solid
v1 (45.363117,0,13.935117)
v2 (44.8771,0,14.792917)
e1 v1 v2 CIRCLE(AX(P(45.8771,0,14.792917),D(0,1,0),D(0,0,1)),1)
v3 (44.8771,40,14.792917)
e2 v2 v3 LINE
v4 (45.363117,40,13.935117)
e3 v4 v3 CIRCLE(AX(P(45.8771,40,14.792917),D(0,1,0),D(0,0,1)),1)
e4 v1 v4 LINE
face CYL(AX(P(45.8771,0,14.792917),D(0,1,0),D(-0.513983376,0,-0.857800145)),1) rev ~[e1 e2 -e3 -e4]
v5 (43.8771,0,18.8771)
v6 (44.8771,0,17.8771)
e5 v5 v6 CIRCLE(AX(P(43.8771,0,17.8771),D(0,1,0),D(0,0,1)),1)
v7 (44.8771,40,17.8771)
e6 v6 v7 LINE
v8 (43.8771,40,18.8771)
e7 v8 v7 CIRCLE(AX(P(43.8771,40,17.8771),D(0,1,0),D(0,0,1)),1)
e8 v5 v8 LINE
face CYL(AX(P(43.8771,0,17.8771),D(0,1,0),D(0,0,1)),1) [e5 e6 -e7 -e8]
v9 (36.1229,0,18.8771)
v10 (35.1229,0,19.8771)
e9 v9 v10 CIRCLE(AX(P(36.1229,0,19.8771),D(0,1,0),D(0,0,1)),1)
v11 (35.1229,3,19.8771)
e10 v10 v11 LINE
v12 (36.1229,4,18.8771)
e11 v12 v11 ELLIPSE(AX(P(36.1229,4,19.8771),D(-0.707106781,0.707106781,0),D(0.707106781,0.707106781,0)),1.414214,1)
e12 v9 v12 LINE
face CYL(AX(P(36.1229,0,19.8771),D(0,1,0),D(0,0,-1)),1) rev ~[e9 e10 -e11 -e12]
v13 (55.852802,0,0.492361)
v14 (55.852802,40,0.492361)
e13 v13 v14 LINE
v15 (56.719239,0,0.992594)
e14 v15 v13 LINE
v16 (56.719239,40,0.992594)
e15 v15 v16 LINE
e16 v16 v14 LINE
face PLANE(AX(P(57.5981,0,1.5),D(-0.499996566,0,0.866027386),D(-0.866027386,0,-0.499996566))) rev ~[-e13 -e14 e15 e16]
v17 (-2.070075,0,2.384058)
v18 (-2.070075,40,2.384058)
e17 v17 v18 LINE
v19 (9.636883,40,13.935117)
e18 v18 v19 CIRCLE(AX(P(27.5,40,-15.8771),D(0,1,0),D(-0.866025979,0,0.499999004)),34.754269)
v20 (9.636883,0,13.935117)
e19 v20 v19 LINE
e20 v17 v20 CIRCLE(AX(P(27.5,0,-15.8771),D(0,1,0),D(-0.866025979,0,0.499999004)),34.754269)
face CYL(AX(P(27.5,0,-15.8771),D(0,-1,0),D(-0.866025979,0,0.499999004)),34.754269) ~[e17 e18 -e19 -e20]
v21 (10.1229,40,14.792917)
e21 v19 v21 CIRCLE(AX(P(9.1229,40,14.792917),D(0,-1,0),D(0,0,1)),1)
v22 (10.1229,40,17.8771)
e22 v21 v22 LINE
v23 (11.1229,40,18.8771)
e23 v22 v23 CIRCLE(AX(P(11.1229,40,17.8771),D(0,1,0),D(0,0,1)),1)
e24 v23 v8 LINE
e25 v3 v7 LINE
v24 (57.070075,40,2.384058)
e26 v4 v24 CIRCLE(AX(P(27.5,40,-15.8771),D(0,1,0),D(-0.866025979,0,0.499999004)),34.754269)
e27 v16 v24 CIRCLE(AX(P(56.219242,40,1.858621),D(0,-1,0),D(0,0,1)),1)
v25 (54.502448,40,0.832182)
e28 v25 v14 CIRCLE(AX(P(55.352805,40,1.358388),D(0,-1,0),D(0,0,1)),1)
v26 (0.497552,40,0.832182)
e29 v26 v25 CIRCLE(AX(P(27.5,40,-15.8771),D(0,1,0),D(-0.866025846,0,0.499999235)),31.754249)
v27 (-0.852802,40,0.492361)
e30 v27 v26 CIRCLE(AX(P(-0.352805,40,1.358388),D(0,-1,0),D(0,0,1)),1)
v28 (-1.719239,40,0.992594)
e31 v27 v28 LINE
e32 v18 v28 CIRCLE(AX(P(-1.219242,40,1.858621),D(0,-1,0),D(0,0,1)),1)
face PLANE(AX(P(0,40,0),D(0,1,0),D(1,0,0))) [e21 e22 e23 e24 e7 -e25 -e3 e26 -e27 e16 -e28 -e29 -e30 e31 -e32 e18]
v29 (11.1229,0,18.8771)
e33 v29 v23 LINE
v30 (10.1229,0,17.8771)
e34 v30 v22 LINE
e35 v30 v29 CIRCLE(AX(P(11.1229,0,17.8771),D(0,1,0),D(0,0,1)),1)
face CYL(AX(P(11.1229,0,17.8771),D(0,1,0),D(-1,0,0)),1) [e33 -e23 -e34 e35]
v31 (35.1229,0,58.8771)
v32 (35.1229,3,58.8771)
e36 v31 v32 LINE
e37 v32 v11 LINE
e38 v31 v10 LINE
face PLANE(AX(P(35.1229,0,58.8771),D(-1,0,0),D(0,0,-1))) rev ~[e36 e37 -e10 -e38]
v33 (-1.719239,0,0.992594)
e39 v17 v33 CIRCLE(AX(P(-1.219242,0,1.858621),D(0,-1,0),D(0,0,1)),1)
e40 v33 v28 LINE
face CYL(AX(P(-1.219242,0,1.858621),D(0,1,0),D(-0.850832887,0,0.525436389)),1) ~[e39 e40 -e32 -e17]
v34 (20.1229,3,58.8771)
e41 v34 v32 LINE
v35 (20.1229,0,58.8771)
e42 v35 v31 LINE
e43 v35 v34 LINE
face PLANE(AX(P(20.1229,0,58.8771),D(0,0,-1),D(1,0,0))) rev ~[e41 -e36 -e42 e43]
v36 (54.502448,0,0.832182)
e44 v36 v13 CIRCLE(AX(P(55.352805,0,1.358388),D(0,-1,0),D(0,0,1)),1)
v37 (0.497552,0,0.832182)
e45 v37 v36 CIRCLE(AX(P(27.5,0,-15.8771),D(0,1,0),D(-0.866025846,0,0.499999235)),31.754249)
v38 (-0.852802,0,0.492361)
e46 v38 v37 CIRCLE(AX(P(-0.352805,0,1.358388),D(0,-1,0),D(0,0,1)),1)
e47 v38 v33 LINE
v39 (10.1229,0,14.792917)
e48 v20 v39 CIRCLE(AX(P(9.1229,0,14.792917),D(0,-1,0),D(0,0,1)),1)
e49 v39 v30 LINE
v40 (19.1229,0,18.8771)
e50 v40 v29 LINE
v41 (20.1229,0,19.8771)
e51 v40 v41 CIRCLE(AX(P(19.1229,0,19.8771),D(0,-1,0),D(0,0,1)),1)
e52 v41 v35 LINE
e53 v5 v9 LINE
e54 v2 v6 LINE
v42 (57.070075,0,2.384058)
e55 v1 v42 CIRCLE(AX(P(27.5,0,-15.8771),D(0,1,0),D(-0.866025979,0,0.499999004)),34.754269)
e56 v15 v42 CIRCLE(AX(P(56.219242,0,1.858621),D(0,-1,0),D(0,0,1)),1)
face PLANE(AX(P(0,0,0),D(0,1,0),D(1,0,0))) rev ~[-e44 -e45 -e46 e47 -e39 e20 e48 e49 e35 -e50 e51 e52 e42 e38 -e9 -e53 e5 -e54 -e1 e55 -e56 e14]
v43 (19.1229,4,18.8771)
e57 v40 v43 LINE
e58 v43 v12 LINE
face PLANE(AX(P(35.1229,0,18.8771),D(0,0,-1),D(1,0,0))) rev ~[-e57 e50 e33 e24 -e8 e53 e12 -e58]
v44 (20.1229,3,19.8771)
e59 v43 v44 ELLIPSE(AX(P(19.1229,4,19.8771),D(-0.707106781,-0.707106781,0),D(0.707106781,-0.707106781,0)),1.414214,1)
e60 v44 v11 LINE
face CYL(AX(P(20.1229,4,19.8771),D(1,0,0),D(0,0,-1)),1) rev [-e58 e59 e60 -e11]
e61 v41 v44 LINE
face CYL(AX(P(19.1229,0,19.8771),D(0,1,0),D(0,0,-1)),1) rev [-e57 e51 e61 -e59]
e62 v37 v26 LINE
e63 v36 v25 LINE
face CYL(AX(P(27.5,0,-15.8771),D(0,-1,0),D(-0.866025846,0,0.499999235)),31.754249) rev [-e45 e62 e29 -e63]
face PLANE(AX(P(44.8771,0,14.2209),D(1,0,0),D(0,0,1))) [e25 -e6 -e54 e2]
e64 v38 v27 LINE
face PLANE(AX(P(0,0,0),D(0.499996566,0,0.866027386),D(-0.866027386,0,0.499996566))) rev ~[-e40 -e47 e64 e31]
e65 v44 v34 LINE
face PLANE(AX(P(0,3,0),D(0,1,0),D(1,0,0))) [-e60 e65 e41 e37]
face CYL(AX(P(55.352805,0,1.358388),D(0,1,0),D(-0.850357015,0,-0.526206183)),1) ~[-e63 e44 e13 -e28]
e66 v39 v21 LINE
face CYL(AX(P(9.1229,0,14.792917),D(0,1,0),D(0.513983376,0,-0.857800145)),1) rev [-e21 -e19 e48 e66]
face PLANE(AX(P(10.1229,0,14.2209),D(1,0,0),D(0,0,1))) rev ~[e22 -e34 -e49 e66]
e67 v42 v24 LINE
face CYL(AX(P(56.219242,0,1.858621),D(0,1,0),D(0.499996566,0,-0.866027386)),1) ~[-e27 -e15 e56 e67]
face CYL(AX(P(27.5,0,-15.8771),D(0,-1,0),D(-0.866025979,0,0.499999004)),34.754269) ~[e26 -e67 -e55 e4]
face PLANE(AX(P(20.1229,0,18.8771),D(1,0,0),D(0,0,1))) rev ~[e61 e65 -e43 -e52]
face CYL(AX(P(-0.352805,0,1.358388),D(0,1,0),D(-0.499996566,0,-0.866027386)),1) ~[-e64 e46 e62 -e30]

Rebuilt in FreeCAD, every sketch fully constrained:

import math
import FreeCAD as App
import Part
import Sketcher

V = App.Vector
Q = App.Units.Quantity


def edges_at(feature, points):
    """Names of the edges that pass closest to the given points."""
    edges = feature.Shape.Edges
    near = lambda p: min(range(len(edges)), key=lambda i: edges[i].distToShape(Part.Vertex(*p))[0])
    return sorted({f"Edge{near(p) + 1}" for p in points})


def add_polygon(sketch, points):
    """Adds a closed chain of lines whose ends are joined by coincident constraints."""
    first, n = sketch.GeometryCount, len(points)
    for a, b in zip(points, points[1:] + points[:1]):
        sketch.addGeometry(Part.LineSegment(App.Vector(*a, 0), App.Vector(*b, 0)), False)
    for i in range(n):
        sketch.addConstraint(Sketcher.Constraint("Coincident", first + i, 2, first + (i + 1) % n, 1))

doc = App.newDocument("Part")
body = doc.addObject("PartDesign::Body", "Body")

sketch1 = body.newObject("Sketcher::SketchObject", "Sketch")
sketch1.AttachmentSupport = (doc.getObject("XZ_Plane"), [""])
sketch1.MapMode = "FlatFace"
sketch1.addGeometry([
    Part.ArcOfCircle(Part.Circle(V(27.5, -15.9, 0), V(0, 0, 1), 31.8), math.radians(30), math.radians(150)),
    Part.LineSegment(V(0, 0, 0), V(-2.6, 1.5, 0)),
    Part.ArcOfCircle(Part.Circle(V(27.5, -15.9, 0), V(0, 0, 1), 34.8), math.radians(120), math.radians(150)),
    Part.LineSegment(V(10.1, 14.2, 0), V(10.1, 18.9, 0)),
    Part.LineSegment(V(10.1, 18.9, 0), V(44.9, 18.9, 0)),
    Part.LineSegment(V(44.9, 18.9, 0), V(44.9, 14.2, 0)),
    Part.ArcOfCircle(Part.Circle(V(27.5, -15.9, 0), V(0, 0, 1), 34.8), math.radians(30), math.radians(60)),
    Part.LineSegment(V(57.6, 1.5, 0), V(55, 0, 0)),
], False)
sketch1.addConstraint([
    Sketcher.Constraint("Coincident", 0, 2, 1, 1),
    Sketcher.Constraint("Coincident", 1, 2, 2, 2),
    Sketcher.Constraint("Coincident", 2, 1, 3, 1),
    Sketcher.Constraint("Coincident", 3, 2, 4, 1),
    Sketcher.Constraint("Coincident", 4, 2, 5, 1),
    Sketcher.Constraint("Coincident", 5, 2, 6, 2),
    Sketcher.Constraint("Coincident", 6, 1, 7, 1),
    Sketcher.Constraint("Coincident", 7, 2, 0, 1),
    Sketcher.Constraint("Vertical", 3),
    Sketcher.Constraint("Horizontal", 4),
    Sketcher.Constraint("Vertical", 5),
    Sketcher.Constraint("Coincident", 0, 2, -1, 1),
    Sketcher.Constraint("Coincident", 2, 3, 0, 3),
    Sketcher.Constraint("Coincident", 6, 3, 0, 3),
    Sketcher.Constraint("Equal", 2, 6),
    Sketcher.Constraint("PointOnObject", 7, 2, -1),
    Sketcher.Constraint("Horizontal", 2, 1, 5, 2),
    Sketcher.Constraint("Horizontal", 1, 2, 6, 1),
    Sketcher.Constraint("Distance", 1, 3.0),
    Sketcher.Constraint("DistanceX", -1, 1, 7, 2, 55.0),
    Sketcher.Constraint("Angle", 1, Q("150.0002 deg")),
    Sketcher.Constraint("Radius", 0, 31.7542),
    Sketcher.Constraint("DistanceX", 4, 1, 4, 2, 34.7542),
    Sketcher.Constraint("DistanceY", 3, 1, 3, 2, 4.6562),
])
pad1 = body.newObject("PartDesign::Pad", "Pad")
pad1.Profile = sketch1
pad1.Length = 40
pad1.Reversed = True

sketch2 = body.newObject("Sketcher::SketchObject", "Sketch001")
sketch2.AttachmentSupport = (doc.getObject("XZ_Plane"), [""])
sketch2.MapMode = "FlatFace"
add_polygon(sketch2, [(35, 19), (20, 19), (20, 59), (35, 59)])
sketch2.addConstraint([
    Sketcher.Constraint("Horizontal", 0),
    Sketcher.Constraint("Vertical", 1),
    Sketcher.Constraint("Horizontal", 2),
    Sketcher.Constraint("Vertical", 3),
    Sketcher.Constraint("DistanceX", 0, 2, 0, 1, 15.0),
    Sketcher.Constraint("DistanceY", 1, 1, 1, 2, 40.0),
    Sketcher.Constraint("DistanceX", -1, 1, 0, 2, 20.123),
    Sketcher.Constraint("DistanceY", -1, 1, 0, 2, 18.877),
])
pad2 = body.newObject("PartDesign::Pad", "Pad001")
pad2.Profile = sketch2
pad2.Length = 3
pad2.Reversed = True
doc.recompute()

fillet = body.newObject("PartDesign::Fillet", "Fillet")
fillet.Base = (pad2, edges_at(pad2, [
    (10.123, 20, 14.221),
    (10.123, 20, 18.877),
    (44.877, 20, 18.877),
    (44.877, 20, 14.221),
    (27.623, 3, 18.877),
    (35.123, 1.5, 18.877),
    (20.123, 1.5, 18.877),
]))
fillet.Radius = 1
doc.recompute()

fillet2 = body.newObject("PartDesign::Fillet", "Fillet001")
fillet2.Base = (fillet, edges_at(fillet, [
    (57.598, 20, 1.5),
    (55, 20, 0),
    (-2.598, 20, 1.5),
    (0, 20, 0),
]))
fillet2.Radius = 1

doc.recompute()
